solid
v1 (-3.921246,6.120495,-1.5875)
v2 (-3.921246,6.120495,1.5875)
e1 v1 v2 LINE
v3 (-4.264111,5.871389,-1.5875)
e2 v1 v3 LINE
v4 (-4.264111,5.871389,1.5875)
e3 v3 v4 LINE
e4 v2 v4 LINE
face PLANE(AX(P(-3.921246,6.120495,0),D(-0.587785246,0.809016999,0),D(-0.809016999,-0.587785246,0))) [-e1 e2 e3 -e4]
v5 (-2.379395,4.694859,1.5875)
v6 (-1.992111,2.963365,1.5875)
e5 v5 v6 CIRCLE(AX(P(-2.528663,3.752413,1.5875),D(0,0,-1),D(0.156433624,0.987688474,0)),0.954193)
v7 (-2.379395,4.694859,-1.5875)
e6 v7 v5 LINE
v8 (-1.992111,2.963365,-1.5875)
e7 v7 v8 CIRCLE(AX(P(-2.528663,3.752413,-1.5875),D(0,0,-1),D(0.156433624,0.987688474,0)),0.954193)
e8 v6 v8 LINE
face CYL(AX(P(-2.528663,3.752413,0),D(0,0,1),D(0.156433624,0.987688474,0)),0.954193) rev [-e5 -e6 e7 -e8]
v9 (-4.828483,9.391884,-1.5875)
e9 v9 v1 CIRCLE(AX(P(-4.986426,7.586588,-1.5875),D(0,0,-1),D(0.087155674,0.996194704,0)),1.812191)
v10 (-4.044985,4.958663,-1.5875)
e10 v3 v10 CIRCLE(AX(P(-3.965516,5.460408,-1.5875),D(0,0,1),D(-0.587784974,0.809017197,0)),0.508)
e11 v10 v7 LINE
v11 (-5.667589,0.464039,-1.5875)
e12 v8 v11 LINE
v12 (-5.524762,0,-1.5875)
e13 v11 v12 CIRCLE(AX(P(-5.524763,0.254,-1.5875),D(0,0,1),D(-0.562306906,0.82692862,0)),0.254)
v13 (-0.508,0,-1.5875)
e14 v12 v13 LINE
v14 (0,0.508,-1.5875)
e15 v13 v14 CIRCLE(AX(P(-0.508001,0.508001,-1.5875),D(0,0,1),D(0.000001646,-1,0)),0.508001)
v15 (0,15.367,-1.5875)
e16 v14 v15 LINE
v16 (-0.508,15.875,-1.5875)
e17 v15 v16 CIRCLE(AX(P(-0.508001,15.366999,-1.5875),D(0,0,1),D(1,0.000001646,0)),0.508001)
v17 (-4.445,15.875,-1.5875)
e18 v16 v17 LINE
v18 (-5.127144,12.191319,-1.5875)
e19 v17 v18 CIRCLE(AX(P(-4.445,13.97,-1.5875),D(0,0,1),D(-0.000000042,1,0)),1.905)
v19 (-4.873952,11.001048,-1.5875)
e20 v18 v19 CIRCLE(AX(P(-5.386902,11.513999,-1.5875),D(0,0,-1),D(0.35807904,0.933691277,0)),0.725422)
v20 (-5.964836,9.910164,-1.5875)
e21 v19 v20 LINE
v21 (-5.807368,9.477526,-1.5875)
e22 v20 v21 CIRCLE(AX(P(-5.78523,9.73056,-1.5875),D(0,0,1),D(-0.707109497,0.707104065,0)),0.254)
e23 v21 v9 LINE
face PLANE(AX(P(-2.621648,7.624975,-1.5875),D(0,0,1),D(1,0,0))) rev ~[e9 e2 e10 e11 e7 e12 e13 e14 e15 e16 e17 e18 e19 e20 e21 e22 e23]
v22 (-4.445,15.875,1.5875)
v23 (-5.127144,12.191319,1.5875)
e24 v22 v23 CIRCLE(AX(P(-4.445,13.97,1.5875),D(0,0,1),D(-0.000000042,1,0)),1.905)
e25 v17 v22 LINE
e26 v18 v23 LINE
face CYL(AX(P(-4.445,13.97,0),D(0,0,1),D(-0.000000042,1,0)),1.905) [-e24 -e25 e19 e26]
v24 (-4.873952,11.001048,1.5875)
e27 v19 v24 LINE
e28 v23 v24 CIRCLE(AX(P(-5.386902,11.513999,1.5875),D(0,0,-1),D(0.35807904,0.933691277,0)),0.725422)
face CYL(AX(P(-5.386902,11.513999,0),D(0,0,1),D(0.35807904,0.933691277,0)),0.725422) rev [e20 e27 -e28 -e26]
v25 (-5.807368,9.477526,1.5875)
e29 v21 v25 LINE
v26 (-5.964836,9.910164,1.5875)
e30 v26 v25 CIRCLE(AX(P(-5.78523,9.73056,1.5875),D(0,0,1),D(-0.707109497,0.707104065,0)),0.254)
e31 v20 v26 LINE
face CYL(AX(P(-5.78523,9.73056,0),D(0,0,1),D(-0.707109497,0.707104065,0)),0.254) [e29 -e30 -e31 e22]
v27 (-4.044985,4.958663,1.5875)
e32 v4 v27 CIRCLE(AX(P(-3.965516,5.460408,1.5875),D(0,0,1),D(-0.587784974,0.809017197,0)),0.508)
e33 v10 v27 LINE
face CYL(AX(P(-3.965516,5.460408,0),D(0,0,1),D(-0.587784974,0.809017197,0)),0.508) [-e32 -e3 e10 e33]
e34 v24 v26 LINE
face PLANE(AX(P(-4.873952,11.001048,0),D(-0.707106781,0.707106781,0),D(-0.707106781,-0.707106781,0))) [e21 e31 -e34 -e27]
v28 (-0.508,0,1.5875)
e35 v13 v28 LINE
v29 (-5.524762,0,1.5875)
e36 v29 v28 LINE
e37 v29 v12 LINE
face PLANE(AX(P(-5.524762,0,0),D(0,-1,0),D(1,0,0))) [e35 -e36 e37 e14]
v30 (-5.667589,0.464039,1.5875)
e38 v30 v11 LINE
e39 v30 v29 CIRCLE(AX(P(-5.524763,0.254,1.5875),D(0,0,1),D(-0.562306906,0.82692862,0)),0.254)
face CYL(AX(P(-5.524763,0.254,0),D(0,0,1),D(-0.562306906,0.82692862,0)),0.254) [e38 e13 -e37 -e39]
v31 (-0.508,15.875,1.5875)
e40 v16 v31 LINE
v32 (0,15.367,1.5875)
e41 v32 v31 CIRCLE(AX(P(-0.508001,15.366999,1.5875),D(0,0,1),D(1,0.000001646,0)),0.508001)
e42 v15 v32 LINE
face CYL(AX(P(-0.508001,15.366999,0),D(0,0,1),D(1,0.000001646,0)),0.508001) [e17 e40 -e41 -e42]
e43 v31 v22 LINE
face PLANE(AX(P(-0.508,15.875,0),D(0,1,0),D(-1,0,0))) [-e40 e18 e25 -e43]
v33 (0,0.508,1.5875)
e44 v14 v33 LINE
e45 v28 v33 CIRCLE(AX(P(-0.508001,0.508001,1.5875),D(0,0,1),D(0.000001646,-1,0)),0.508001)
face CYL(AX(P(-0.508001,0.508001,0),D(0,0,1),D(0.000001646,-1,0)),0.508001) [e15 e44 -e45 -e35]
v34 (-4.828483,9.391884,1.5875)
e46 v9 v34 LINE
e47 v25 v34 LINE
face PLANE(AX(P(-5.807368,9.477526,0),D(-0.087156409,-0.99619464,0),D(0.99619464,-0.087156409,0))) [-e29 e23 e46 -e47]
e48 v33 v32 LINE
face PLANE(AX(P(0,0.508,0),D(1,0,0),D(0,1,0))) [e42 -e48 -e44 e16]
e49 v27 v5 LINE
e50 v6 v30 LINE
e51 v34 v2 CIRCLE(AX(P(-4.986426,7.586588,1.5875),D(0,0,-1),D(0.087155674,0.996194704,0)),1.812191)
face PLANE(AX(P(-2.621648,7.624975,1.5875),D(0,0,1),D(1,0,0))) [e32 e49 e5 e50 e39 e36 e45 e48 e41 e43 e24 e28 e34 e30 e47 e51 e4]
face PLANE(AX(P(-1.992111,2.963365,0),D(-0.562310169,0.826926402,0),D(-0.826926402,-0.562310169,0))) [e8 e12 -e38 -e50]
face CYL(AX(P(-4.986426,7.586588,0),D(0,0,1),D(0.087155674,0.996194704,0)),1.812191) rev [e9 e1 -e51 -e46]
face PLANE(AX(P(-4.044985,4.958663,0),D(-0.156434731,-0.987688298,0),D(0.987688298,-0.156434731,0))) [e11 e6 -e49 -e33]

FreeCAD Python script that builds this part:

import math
import FreeCAD as App
import Part
import Sketcher

V = App.Vector
Q = App.Units.Quantity

doc = App.newDocument("Part")
body = doc.addObject("PartDesign::Body", "Body")

# Sketch on XY plane
sketch1 = body.newObject("Sketcher::SketchObject", "Sketch")
sketch1.AttachmentSupport = (doc.getObject("XY_Plane"), [""])
sketch1.MapMode = "FlatFace"
sketch1.addGeometry([
    Part.LineSegment(V(-5.524762, 0, 0), V(-0.508, 0, 0)),  # 0
    Part.ArcOfCircle(Part.Circle(V(-0.508001, 0.508001, 0), V(0, 0, 1), 0.508001), math.radians(-89.999906), math.radians(-0.000094)),  # 1
    Part.LineSegment(V(0, 0.508, 0), V(0, 15.367, 0)),  # 2
    Part.ArcOfCircle(Part.Circle(V(-0.508001, 15.366999, 0), V(0, 0, 1), 0.508001), math.radians(0.000094), math.radians(89.999906)),  # 3
    Part.LineSegment(V(-0.508, 15.875, 0), V(-4.445, 15.875, 0)),  # 4
    Part.ArcOfCircle(Part.Circle(V(-4.445, 13.97, 0), V(0, 0, 1), 1.905), math.radians(90.000002), math.radians(249.01762)),  # 5
    Part.ArcOfCircle(Part.Circle(V(-5.386902, 11.513999, 0), V(0, 0, 1), 0.725422), math.radians(-45.000037), math.radians(69.01773)),  # 6
    Part.LineSegment(V(-4.873952, 11.001048, 0), V(-5.964836, 9.910164, 0)),  # 7
    Part.ArcOfCircle(Part.Circle(V(-5.78523, 9.73056, 0), V(0, 0, 1), 0.254), math.radians(135.00022), math.radians(264.999931)),  # 8
    Part.LineSegment(V(-5.807368, 9.477526, 0), V(-4.828483, 9.391884, 0)),  # 9
    Part.ArcOfCircle(Part.Circle(V(-4.986426, 7.586588, 0), V(0, 0, 1), 1.812191), math.radians(-53.999986), math.radians(85.000004)),  # 10
    Part.LineSegment(V(-3.921246, 6.120495, 0), V(-4.264111, 5.871389, 0)),  # 11
    Part.ArcOfCircle(Part.Circle(V(-3.965516, 5.460408, 0), V(0, 0, 1), 0.508), math.radians(125.99998), math.radians(261.000005)),  # 12
    Part.LineSegment(V(-4.044985, 4.958663, 0), V(-2.379395, 4.694859, 0)),  # 13
    Part.ArcOfCircle(Part.Circle(V(-2.528663, 3.752413, 0), V(0, 0, 1), 0.954193), math.radians(-55.78434), math.radians(81.000049)),  # 14
    Part.LineSegment(V(-1.992111, 2.963365, 0), V(-5.667589, 0.464039, 0)),  # 15
    Part.ArcOfCircle(Part.Circle(V(-5.524763, 0.254, 0), V(0, 0, 1), 0.254), math.radians(124.215486), math.radians(270.000296)),  # 16
], False)
sketch1.addConstraint([
    Sketcher.Constraint("Coincident", 0, 2, 1, 1),
    Sketcher.Constraint("Coincident", 1, 2, 2, 1),
    Sketcher.Constraint("Coincident", 2, 2, 3, 1),
    Sketcher.Constraint("Coincident", 3, 2, 4, 1),
    Sketcher.Constraint("Coincident", 4, 2, 5, 1),
    Sketcher.Constraint("Coincident", 5, 2, 6, 2),
    Sketcher.Constraint("Coincident", 6, 1, 7, 1),
    Sketcher.Constraint("Coincident", 7, 2, 8, 1),
    Sketcher.Constraint("Coincident", 8, 2, 9, 1),
    Sketcher.Constraint("Coincident", 9, 2, 10, 2),
    Sketcher.Constraint("Coincident", 10, 1, 11, 1),
    Sketcher.Constraint("Coincident", 11, 2, 12, 1),
    Sketcher.Constraint("Coincident", 12, 2, 13, 1),
    Sketcher.Constraint("Coincident", 13, 2, 14, 2),
    Sketcher.Constraint("Coincident", 14, 1, 15, 1),
    Sketcher.Constraint("Coincident", 15, 2, 16, 1),
    Sketcher.Constraint("Coincident", 16, 2, 0, 1),
    Sketcher.Constraint("Horizontal", 0),
    Sketcher.Constraint("Vertical", 2),
    Sketcher.Constraint("Horizontal", 4),
    Sketcher.Constraint("PointOnObject", 0, 2, -1),
    Sketcher.Constraint("PointOnObject", 1, 2, -2),
    Sketcher.Constraint("Radius", 1, Q("0.02 in")),
    Sketcher.Constraint("Radius", 3, Q("0.02 in")),
    Sketcher.Constraint("Radius", 8, Q("0.01 in")),
    Sketcher.Constraint("Radius", 12, Q("0.02 in")),
    Sketcher.Constraint("Radius", 16, Q("0.01 in")),
    Sketcher.Constraint("Radius", 5, Q("0.075 in")),
    Sketcher.Constraint("DistanceX", 4, 2, 4, 1, Q("0.155 in")),
    Sketcher.Constraint("DistanceY", 2, 1, 2, 2, Q("0.585 in")),
    Sketcher.Constraint("DistanceY", -1, 1, 5, 3, Q("0.55 in")),
    Sketcher.Constraint("DistanceX", 0, 2, -1, 1, Q("0.02 in")),
    Sketcher.Constraint("DistanceY", -1, 1, 1, 2, Q("0.02 in")),
    Sketcher.Constraint("DistanceX", 3, 2, -1, 1, Q("0.02 in")),
    Sketcher.Constraint("DistanceX", 5, 3, -1, 1, Q("0.175 in")),
    Sketcher.Constraint("Radius", 6, 0.725422),
    Sketcher.Constraint("Radius", 10, 1.812191),
    Sketcher.Constraint("Radius", 14, 0.954193),
    Sketcher.Constraint("DistanceY", -1, 1, 6, 3, 11.513999),
    Sketcher.Constraint("DistanceX", 16, 3, 14, 3, 2.9961),
    Sketcher.Constraint("DistanceY", 11, 2, 10, 3, 1.715199),
    Sketcher.Constraint("DistanceY", 14, 1, 12, 2, 1.995298),
    Sketcher.Constraint("DistanceX", 16, 2, 14, 3, 2.996099),
    Sketcher.Constraint("Distance", 13, 1.686352),
    Sketcher.Constraint("DistanceX", 0, 1, 0, 2, 5.016762),
    Sketcher.Constraint("DistanceX", 8, 3, -1, 1, 5.78523),
    Sketcher.Constraint("DistanceY", -1, 1, 8, 3, 9.73056),
    Sketcher.Constraint("DistanceY", -1, 1, 10, 3, 7.586588),
    Sketcher.Constraint("DistanceY", -1, 1, 12, 3, 5.460408),
    Sketcher.Constraint("DistanceY", -1, 1, 5, 2, 12.191319),
    Sketcher.Constraint("DistanceX", 6, 1, -1, 1, 4.873952),
    Sketcher.Constraint("DistanceX", 8, 2, -1, 1, 5.807368),
    Sketcher.Constraint("DistanceX", 11, 2, -1, 1, 4.264111),
    Sketcher.Constraint("DistanceY", -1, 1, 13, 2, 4.694859),
    Sketcher.Constraint("DistanceX", 14, 1, -1, 1, 1.992111),
    Sketcher.Constraint("DistanceX", 15, 2, -1, 1, 5.667589),
    Sketcher.Constraint("DistanceX", 10, 3, 12, 3, 1.020909),
    Sketcher.Constraint("DistanceX", 7, 2, 10, 3, 0.97841),
    Sketcher.Constraint("DistanceY", 9, 2, 8, 2, 0.085642),
    Sketcher.Constraint("DistanceX", 12, 3, 10, 1, 0.04427),
])
pad1 = body.newObject("PartDesign::Pad", "Pad")
pad1.Profile = sketch1
pad1.Length = Q("0.125 in")
pad1.Midplane = True

doc.recompute()
